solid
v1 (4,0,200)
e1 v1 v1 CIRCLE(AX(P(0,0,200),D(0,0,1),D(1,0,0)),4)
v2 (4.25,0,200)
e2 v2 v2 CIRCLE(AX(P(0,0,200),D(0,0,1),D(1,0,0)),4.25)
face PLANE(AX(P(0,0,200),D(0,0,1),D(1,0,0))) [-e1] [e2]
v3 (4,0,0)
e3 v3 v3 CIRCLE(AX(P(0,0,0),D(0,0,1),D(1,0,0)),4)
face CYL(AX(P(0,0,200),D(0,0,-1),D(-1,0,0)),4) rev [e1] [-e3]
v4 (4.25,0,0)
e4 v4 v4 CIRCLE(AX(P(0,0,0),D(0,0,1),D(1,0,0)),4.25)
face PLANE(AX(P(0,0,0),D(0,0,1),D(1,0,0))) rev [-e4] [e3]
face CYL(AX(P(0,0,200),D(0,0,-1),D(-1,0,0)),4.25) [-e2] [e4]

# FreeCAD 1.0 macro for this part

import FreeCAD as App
import Part
import Sketcher
from FreeCAD import Vector
Q = App.Units.Quantity

doc = App.newDocument("Part")
params = doc.addObject("Spreadsheet::Sheet", "Params")
for row, (alias, value) in enumerate([
    ("sketch1_diameter", "8 mm"),
    ("sketch1_diameter2", "8.5 mm"),
    ("pad1_length", "200 mm"),
], start=1):
    params.set(f"A{row}", alias)
    params.set(f"B{row}", "=" + value)
    params.setAlias(f"B{row}", alias)

body = doc.addObject("PartDesign::Body", "Body")

# Sketch on XY plane
sketch1 = body.newObject("Sketcher::SketchObject", "Sketch")
sketch1.AttachmentSupport = (doc.getObject("XY_Plane"), [""])
sketch1.MapMode = "FlatFace"
sketch1.addGeometry(Part.Circle(Vector(0, 0, 0), Vector(0, 0, 1), 4.25), False)
sketch1.addGeometry(Part.Circle(Vector(0, 0, 0), Vector(0, 0, 1), 4), False)
sketch1.addConstraint(Sketcher.Constraint("Coincident", 0, 3, -1, 1))
sketch1.addConstraint(Sketcher.Constraint("Coincident", 1, 3, -1, 1))
sketch1.addConstraint(Sketcher.Constraint("Diameter", 1, Q("8 mm")))
sketch1.addConstraint(Sketcher.Constraint("Diameter", 0, Q("8.5 mm")))
sketch1.setExpression("Constraints[2]", "Params.sketch1_diameter")
sketch1.setExpression("Constraints[3]", "Params.sketch1_diameter2")
pad1 = body.newObject("PartDesign::Pad", "Pad")
pad1.Profile = sketch1
pad1.setExpression("Length", "Params.pad1_length")

doc.recompute()
